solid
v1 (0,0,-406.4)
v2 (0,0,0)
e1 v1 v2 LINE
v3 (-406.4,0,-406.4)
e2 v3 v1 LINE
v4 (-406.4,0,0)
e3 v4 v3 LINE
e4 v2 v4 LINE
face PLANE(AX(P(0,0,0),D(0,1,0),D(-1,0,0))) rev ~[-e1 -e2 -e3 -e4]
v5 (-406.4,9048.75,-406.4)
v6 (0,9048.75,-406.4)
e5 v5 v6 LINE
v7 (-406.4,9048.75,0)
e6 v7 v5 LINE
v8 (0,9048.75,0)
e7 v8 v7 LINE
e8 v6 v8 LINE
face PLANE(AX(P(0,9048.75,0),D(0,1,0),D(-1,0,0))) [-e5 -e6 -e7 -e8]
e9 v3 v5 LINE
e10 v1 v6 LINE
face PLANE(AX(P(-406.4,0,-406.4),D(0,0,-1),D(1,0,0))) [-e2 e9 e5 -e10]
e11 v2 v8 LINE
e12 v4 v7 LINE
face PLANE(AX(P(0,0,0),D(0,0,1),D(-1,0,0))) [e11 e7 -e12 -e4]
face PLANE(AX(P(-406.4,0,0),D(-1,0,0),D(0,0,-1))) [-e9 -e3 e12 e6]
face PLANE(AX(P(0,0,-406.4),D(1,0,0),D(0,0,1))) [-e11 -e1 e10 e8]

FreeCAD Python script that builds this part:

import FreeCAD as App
import Part
import Sketcher
Q = App.Units.Quantity

doc = App.newDocument("Part")
body = doc.addObject("PartDesign::Body", "Body")

sketch1 = doc.addObject("Sketcher::SketchObject", "Sketch")
body.addObject(sketch1)
sketch1.AttachmentSupport = (doc.XZ_Plane, [""])
sketch1.MapMode = "FlatFace"
sketch1.addGeometry([
    Part.LineSegment(App.Vector(-406, 0, 0), App.Vector(0, 0, 0)),
    Part.LineSegment(App.Vector(0, 0, 0), App.Vector(0, -406, 0)),
    Part.LineSegment(App.Vector(0, -406, 0), App.Vector(-406, -406, 0)),
    Part.LineSegment(App.Vector(-406, -406, 0), App.Vector(-406, 0, 0)),
], False)
sketch1.addConstraint([
    Sketcher.Constraint("Coincident", 0, 2, 1, 1),
    Sketcher.Constraint("Coincident", 1, 2, 2, 1),
    Sketcher.Constraint("Coincident", 2, 2, 3, 1),
    Sketcher.Constraint("Coincident", 3, 2, 0, 1),
    Sketcher.Constraint("Horizontal", 0),
    Sketcher.Constraint("Vertical", 1),
    Sketcher.Constraint("Horizontal", 2),
    Sketcher.Constraint("Vertical", 3),
    Sketcher.Constraint("Coincident", 0, 2, -1, 1),
    Sketcher.Constraint("Equal", 2, 1),
    Sketcher.Constraint("DistanceX", 0, 1, 0, 2, Q("16 in")),
])
pad1 = doc.addObject("PartDesign::Pad", "Pad")
body.addObject(pad1)
pad1.Profile = sketch1
pad1.Length = Q("356.25 in")
pad1.Reversed = True

doc.recompute()
